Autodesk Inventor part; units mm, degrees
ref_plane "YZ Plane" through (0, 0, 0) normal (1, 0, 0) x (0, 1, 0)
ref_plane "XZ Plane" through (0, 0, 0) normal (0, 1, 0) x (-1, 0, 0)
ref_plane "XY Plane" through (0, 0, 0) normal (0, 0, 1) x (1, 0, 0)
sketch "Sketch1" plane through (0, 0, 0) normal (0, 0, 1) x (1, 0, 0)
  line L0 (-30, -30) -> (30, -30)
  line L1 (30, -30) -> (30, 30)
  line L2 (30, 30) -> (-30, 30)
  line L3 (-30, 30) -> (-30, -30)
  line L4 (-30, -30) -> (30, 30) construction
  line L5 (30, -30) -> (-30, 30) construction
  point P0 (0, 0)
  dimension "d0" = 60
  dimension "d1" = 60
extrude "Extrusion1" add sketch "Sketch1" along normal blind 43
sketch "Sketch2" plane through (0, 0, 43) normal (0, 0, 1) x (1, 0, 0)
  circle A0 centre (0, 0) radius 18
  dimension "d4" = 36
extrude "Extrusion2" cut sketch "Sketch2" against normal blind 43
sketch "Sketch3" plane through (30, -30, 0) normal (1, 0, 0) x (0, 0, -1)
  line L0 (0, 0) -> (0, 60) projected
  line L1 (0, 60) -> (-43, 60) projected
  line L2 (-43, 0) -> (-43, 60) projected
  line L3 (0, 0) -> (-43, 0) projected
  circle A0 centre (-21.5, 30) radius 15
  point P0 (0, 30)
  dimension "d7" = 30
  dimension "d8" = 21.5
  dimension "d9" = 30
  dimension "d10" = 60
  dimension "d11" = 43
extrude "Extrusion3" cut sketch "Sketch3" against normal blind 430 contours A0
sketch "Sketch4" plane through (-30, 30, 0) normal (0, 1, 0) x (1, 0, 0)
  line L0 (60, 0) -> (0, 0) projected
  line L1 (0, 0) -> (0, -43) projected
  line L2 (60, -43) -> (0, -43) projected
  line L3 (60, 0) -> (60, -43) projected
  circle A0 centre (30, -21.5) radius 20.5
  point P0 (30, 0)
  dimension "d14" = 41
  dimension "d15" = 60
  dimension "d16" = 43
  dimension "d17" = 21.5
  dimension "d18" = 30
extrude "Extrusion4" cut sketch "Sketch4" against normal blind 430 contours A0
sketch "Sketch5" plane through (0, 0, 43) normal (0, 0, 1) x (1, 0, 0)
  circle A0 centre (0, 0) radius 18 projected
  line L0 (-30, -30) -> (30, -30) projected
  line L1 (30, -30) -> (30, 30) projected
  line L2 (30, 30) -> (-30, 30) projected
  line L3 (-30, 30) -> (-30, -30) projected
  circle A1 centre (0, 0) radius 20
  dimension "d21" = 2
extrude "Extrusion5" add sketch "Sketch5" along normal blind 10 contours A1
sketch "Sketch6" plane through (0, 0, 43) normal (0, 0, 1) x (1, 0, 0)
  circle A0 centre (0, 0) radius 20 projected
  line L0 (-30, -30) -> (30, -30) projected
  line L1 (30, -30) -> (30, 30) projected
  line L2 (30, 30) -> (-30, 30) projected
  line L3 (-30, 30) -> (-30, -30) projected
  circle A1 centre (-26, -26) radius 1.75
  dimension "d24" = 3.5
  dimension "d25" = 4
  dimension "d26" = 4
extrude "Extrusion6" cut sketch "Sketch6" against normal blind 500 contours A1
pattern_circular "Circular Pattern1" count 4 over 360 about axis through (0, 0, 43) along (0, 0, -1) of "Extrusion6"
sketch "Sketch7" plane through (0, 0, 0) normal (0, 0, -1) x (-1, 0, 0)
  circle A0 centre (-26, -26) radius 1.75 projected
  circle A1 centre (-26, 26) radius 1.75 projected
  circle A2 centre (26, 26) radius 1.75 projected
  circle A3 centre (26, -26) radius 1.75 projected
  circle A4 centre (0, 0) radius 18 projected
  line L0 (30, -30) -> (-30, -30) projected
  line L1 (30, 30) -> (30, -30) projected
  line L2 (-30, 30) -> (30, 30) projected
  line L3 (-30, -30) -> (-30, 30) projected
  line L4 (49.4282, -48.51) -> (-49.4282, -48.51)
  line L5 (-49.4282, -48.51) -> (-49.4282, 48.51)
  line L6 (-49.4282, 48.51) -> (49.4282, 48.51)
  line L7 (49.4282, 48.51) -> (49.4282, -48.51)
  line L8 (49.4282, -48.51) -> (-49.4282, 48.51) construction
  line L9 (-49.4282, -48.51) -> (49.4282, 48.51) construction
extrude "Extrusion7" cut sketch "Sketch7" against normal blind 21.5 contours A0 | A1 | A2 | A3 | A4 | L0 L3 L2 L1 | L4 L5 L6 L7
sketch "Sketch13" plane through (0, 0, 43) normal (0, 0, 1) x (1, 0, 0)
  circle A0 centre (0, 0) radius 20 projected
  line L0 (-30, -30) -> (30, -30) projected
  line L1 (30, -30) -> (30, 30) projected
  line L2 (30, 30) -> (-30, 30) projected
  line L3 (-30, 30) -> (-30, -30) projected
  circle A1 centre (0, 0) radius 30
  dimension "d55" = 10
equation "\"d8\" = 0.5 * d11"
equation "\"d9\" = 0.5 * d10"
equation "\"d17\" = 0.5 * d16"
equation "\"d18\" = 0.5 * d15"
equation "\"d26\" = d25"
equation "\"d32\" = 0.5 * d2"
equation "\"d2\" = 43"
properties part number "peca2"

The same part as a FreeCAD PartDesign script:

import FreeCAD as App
import Part
import Sketcher
Q = App.Units.Quantity


def add_polygon(sketch, points):
    """Adds a closed chain of lines whose ends are joined by coincident constraints."""
    first, n = sketch.GeometryCount, len(points)
    for a, b in zip(points, points[1:] + points[:1]):
        sketch.addGeometry(Part.LineSegment(App.Vector(*a, 0), App.Vector(*b, 0)), False)
    for i in range(n):
        sketch.addConstraint(Sketcher.Constraint("Coincident", first + i, 2, first + (i + 1) % n, 1))

doc = App.newDocument("Part")
params = doc.addObject("Spreadsheet::Sheet", "Params")
for row, (alias, value) in enumerate([
    ("sketch1_width", "60 mm"),
    ("pad1_length", "43 mm"),
    ("sketch2_diameter", "36 mm"),
    ("pocket1_length", "43 mm"),
    ("sketch3_diameter", "30 mm"),
    ("pocket2_length", "430 mm"),
    ("sketch4_diameter", "41 mm"),
    ("pocket3_length", "430 mm"),
    ("sketch5_diameter", "40 mm"),
    ("sketch5_diameter2", "36 mm"),
    ("pad2_length", "10 mm"),
    ("sketch6_diameter", "3.5 mm"),
    ("pocket4_length", "500 mm"),
    ("sketch7_height", "97.02 mm"),
    ("pocket5_length", "21.5 mm"),
], start=1):
    params.set(f"A{row}", alias)
    params.set(f"B{row}", "=" + value)
    params.setAlias(f"B{row}", alias)

body = doc.addObject("PartDesign::Body", "Body")

# Sketch on XY plane
sketch1 = doc.addObject("Sketcher::SketchObject", "Sketch")
body.addObject(sketch1)
sketch1.AttachmentSupport = (doc.XY_Plane, [""])
sketch1.MapMode = "FlatFace"
add_polygon(sketch1, [(-30, 30), (-30, -30), (30, -30), (30, 30)])  # lines 0-3
sketch1.addConstraint([
    Sketcher.Constraint("Vertical", 0),
    Sketcher.Constraint("Horizontal", 1),
    Sketcher.Constraint("Vertical", 2),
    Sketcher.Constraint("Horizontal", 3),
    Sketcher.Constraint("Symmetric", 0, 2, 2, 2, -1, 1),
    Sketcher.Constraint("Equal", 3, 0),
    Sketcher.Constraint("DistanceX", 1, 1, 1, 2, Q("60 mm")),
])
sketch1.setExpression("Constraints[10]", "Params.sketch1_width")
pad1 = doc.addObject("PartDesign::Pad", "Pad")
body.addObject(pad1)
pad1.Profile = sketch1
pad1.setExpression("Length", "Params.pad1_length")

# Sketch on XY plane
sketch2 = doc.addObject("Sketcher::SketchObject", "Sketch001")
body.addObject(sketch2)
sketch2.AttachmentSupport = (doc.XY_Plane, [""])
sketch2.MapMode = "FlatFace"
sketch2.AttachmentOffset = App.Placement(App.Vector(0, 0, 43), App.Rotation())
sketch2.addGeometry(Part.Circle(App.Vector(0, 0, 0), App.Vector(0, 0, 1), 18), False)
sketch2.addConstraint([
    Sketcher.Constraint("Coincident", 0, 3, -1, 1),
    Sketcher.Constraint("Diameter", 0, Q("36 mm")),
])
sketch2.setExpression("Constraints[1]", "Params.sketch2_diameter")
pocket1 = doc.addObject("PartDesign::Pocket", "Pocket")
body.addObject(pocket1)
pocket1.Profile = sketch2
pocket1.setExpression("Length", "Params.pocket1_length")

# Sketch on YZ plane
sketch3 = doc.addObject("Sketcher::SketchObject", "Sketch002")
body.addObject(sketch3)
sketch3.AttachmentSupport = (doc.YZ_Plane, [""])
sketch3.MapMode = "FlatFace"
sketch3.AttachmentOffset = App.Placement(App.Vector(0, 0, 30), App.Rotation())
sketch3.addGeometry(Part.Circle(App.Vector(0, 21.5, 0), App.Vector(0, 0, 1), 15), False)
sketch3.addConstraint([
    Sketcher.Constraint("PointOnObject", 0, 3, -2),
    Sketcher.Constraint("Diameter", 0, Q("30 mm")),
    Sketcher.Constraint("DistanceY", -1, 1, 0, 3, Q("21.5 mm")),
])
sketch3.setExpression("Constraints[1]", "Params.sketch3_diameter")
pocket2 = doc.addObject("PartDesign::Pocket", "Pocket001")
body.addObject(pocket2)
pocket2.Profile = sketch3
pocket2.setExpression("Length", "Params.pocket2_length")

# Sketch on XZ plane
sketch4 = doc.addObject("Sketcher::SketchObject", "Sketch003")
body.addObject(sketch4)
sketch4.AttachmentSupport = (doc.XZ_Plane, [""])
sketch4.MapMode = "FlatFace"
sketch4.AttachmentOffset = App.Placement(App.Vector(0, 0, -30), App.Rotation())
sketch4.addGeometry(Part.Circle(App.Vector(0, 21.5, 0), App.Vector(0, 0, 1), 20.5), False)
sketch4.addConstraint([
    Sketcher.Constraint("PointOnObject", 0, 3, -2),
    Sketcher.Constraint("Diameter", 0, Q("41 mm")),
    Sketcher.Constraint("DistanceY", -1, 1, 0, 3, Q("21.5 mm")),
])
sketch4.setExpression("Constraints[1]", "Params.sketch4_diameter")
pocket3 = doc.addObject("PartDesign::Pocket", "Pocket002")
body.addObject(pocket3)
pocket3.Profile = sketch4
pocket3.setExpression("Length", "Params.pocket3_length")
pocket3.Reversed = True

# Sketch on XY plane
sketch5 = doc.addObject("Sketcher::SketchObject", "Sketch004")
body.addObject(sketch5)
sketch5.AttachmentSupport = (doc.XY_Plane, [""])
sketch5.MapMode = "FlatFace"
sketch5.AttachmentOffset = App.Placement(App.Vector(0, 0, 43), App.Rotation())
sketch5.addGeometry([
    Part.Circle(App.Vector(0, 0, 0), App.Vector(0, 0, 1), 20),
    Part.Circle(App.Vector(0, 0, 0), App.Vector(0, 0, 1), 18),
], False)
sketch5.addConstraint([
    Sketcher.Constraint("Coincident", 0, 3, -1, 1),
    Sketcher.Constraint("Coincident", 1, 3, -1, 1),
    Sketcher.Constraint("Diameter", 0, Q("40 mm")),
    Sketcher.Constraint("Diameter", 1, Q("36 mm")),
])
sketch5.setExpression("Constraints[2]", "Params.sketch5_diameter")
sketch5.setExpression("Constraints[3]", "Params.sketch5_diameter2")
pad2 = doc.addObject("PartDesign::Pad", "Pad001")
body.addObject(pad2)
pad2.Profile = sketch5
pad2.setExpression("Length", "Params.pad2_length")

# Sketch on XY plane
sketch6 = doc.addObject("Sketcher::SketchObject", "Sketch005")
body.addObject(sketch6)
sketch6.AttachmentSupport = (doc.XY_Plane, [""])
sketch6.MapMode = "FlatFace"
sketch6.AttachmentOffset = App.Placement(App.Vector(0, 0, 43), App.Rotation())
sketch6.addGeometry(Part.Circle(App.Vector(-26, -26, 0), App.Vector(0, 0, 1), 1.75), False)
sketch6.addConstraint([
    Sketcher.Constraint("Diameter", 0, Q("3.5 mm")),
    Sketcher.Constraint("DistanceX", 0, 3, -1, 1, Q("26 mm")),
    Sketcher.Constraint("DistanceY", 0, 3, -1, 1, Q("26 mm")),
])
sketch6.setExpression("Constraints[0]", "Params.sketch6_diameter")
pocket4 = doc.addObject("PartDesign::Pocket", "Pocket003")
body.addObject(pocket4)
pocket4.Profile = sketch6
pocket4.setExpression("Length", "Params.pocket4_length")
doc.recompute()

polarpattern = doc.addObject("PartDesign::PolarPattern", "PolarPattern")
body.addObject(polarpattern)
polarpattern.Originals = [pocket4]
polarpattern.Axis = (doc.Z_Axis, [""])
polarpattern.Angle = 360
polarpattern.Occurrences = 4
body.Tip = polarpattern

# Sketch on XY plane
sketch7 = doc.addObject("Sketcher::SketchObject", "Sketch006")
body.addObject(sketch7)
sketch7.AttachmentSupport = (doc.XY_Plane, [""])
sketch7.MapMode = "FlatFace"
add_polygon(sketch7, [(49.4282, -48.51), (-49.4282, -48.51), (-49.4282, 48.51), (49.4282, 48.51)])  # lines 0-3
sketch7.addConstraint([
    Sketcher.Constraint("Horizontal", 0),
    Sketcher.Constraint("Vertical", 1),
    Sketcher.Constraint("Horizontal", 2),
    Sketcher.Constraint("Vertical", 3),
    Sketcher.Constraint("Symmetric", 0, 2, 2, 2, -1, 1),
    Sketcher.Constraint("DistanceY", 1, 1, 1, 2, Q("97.02 mm")),
    Sketcher.Constraint("DistanceX", 0, 2, 0, 1, Q("98.8564 mm")),
])
sketch7.setExpression("Constraints[9]", "Params.sketch7_height")
pocket5 = doc.addObject("PartDesign::Pocket", "Pocket004")
body.addObject(pocket5)
pocket5.Profile = sketch7
pocket5.setExpression("Length", "Params.pocket5_length")
pocket5.Reversed = True

doc.recompute()
